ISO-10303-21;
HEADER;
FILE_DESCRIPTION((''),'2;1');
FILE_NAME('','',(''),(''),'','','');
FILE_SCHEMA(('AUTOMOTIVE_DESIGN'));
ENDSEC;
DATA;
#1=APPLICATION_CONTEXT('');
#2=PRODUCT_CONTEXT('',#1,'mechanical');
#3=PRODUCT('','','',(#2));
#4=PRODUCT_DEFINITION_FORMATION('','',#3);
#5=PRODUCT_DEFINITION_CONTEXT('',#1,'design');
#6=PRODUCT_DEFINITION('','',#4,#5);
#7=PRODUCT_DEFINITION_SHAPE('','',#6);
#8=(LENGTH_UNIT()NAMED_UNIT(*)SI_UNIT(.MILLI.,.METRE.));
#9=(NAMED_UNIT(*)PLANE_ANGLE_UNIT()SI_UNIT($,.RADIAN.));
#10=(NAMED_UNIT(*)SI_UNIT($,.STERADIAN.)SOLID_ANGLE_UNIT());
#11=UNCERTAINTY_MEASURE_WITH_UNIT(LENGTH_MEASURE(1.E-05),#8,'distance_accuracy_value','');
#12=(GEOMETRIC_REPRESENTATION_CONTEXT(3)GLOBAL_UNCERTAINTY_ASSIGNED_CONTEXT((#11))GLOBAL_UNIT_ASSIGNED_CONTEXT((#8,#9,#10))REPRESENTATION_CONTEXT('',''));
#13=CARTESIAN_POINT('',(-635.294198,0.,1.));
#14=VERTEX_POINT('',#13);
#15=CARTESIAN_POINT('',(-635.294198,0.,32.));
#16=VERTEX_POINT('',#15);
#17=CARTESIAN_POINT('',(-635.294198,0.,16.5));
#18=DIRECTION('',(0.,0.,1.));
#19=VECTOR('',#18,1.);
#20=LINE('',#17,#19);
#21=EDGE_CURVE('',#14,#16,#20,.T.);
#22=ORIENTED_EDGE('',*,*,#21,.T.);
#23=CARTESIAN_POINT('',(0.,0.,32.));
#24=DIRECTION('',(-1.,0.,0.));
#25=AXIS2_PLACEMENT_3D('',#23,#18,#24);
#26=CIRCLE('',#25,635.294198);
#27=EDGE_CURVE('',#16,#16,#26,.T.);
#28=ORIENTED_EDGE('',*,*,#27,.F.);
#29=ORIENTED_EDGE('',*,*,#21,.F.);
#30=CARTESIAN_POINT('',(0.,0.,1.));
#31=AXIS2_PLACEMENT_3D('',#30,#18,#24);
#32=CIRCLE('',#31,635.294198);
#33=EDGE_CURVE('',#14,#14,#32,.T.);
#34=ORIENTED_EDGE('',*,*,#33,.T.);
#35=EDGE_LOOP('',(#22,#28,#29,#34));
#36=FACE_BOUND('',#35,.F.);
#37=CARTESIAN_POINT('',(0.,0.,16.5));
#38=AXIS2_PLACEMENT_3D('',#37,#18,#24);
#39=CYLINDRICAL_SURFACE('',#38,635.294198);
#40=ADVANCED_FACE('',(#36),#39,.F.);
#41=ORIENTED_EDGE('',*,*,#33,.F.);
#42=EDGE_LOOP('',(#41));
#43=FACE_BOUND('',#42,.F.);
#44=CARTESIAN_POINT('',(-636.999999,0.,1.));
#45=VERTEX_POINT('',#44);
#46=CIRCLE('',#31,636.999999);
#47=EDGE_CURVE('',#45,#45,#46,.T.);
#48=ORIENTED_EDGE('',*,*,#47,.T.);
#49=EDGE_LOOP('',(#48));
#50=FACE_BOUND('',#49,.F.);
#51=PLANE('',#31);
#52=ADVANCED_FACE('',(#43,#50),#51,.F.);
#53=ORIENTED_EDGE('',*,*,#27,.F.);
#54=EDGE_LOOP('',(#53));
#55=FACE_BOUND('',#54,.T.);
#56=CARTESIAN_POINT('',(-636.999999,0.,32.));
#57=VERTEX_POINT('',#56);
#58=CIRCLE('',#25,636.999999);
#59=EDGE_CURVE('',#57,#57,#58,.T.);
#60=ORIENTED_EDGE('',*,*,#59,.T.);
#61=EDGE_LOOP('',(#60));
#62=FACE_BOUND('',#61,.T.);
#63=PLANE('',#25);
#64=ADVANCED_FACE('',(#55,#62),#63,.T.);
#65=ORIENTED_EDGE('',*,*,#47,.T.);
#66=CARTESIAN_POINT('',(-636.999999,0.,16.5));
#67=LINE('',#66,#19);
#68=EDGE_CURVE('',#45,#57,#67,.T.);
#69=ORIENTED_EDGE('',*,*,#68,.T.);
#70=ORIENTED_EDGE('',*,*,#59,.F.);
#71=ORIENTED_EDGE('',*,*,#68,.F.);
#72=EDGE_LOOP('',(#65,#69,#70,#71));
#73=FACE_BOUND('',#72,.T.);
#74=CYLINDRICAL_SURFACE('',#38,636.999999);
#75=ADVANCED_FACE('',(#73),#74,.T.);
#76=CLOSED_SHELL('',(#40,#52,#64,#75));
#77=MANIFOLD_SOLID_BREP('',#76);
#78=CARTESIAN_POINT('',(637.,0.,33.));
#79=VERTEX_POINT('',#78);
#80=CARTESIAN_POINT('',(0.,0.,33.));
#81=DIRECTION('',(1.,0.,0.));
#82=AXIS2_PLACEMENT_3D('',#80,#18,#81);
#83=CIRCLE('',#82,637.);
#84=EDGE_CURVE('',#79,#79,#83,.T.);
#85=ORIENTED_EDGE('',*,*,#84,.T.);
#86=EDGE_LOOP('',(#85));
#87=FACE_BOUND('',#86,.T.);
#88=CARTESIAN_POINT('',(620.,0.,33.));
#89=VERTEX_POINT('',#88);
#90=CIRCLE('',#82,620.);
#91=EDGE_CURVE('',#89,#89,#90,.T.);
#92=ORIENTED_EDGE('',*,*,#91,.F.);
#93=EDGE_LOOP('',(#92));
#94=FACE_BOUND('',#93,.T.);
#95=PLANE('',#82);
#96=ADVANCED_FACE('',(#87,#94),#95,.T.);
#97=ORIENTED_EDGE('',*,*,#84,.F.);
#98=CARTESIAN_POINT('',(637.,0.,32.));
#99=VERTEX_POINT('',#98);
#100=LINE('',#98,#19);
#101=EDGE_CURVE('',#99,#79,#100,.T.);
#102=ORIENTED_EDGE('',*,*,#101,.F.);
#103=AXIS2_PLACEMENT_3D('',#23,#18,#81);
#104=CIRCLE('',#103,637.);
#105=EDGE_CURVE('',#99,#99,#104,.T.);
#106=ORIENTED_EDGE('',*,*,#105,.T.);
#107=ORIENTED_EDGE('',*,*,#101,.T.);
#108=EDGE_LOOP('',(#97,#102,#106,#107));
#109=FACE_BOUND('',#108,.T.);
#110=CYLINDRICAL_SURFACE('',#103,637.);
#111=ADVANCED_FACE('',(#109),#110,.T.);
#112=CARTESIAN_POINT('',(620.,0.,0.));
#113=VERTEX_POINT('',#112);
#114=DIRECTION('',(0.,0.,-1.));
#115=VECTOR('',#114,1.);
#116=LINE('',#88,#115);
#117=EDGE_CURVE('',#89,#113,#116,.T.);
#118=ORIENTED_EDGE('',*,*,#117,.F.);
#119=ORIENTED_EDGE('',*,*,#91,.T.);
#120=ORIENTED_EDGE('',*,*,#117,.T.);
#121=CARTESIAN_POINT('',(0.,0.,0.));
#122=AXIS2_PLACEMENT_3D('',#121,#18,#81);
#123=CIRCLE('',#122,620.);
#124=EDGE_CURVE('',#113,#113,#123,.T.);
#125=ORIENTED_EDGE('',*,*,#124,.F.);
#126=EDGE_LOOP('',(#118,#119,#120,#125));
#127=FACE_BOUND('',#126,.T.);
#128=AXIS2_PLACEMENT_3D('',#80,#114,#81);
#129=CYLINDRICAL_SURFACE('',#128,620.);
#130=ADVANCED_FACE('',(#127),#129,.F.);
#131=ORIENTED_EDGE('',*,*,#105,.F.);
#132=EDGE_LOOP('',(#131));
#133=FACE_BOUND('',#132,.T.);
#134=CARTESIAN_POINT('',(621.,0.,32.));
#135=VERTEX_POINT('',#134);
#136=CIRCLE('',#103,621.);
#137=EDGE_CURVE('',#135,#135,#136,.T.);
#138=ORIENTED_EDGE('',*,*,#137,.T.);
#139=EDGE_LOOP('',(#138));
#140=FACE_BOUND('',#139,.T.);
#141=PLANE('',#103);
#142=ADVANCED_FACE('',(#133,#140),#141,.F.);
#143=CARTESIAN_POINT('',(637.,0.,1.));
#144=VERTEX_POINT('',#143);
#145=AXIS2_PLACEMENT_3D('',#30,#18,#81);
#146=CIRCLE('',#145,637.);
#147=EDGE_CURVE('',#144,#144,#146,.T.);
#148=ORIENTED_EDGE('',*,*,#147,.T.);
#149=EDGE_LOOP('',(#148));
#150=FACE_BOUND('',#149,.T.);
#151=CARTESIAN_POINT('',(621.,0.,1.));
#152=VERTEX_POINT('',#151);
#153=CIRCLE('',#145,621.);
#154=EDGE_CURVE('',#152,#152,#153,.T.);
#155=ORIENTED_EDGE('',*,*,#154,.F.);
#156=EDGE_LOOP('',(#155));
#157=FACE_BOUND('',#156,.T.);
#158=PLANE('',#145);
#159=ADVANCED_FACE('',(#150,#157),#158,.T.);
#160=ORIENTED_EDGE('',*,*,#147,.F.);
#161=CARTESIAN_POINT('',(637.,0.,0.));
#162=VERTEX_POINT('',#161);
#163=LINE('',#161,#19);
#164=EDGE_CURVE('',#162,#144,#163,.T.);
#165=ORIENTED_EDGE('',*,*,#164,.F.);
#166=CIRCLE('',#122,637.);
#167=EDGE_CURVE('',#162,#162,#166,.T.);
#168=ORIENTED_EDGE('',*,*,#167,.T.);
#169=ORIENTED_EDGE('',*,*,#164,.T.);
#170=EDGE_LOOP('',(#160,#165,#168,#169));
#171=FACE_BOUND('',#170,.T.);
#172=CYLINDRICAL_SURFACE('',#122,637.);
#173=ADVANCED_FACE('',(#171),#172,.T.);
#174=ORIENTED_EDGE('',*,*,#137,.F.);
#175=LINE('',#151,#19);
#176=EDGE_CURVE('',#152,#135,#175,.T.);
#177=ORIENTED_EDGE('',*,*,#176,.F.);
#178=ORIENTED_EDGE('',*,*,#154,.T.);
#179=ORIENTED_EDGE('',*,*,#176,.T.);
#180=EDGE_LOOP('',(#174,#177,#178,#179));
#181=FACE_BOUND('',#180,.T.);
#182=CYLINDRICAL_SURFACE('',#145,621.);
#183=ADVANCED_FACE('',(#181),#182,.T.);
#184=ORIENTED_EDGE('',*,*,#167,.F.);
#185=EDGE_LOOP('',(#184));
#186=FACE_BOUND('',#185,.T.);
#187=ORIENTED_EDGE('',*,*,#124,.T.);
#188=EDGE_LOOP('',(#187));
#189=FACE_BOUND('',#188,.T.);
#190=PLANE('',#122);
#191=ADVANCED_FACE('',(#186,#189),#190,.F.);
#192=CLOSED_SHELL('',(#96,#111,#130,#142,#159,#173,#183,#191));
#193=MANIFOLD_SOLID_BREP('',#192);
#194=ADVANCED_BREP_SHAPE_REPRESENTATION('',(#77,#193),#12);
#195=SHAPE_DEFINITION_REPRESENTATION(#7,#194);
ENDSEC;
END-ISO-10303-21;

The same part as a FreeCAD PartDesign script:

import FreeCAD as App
import Part
import Sketcher

doc = App.newDocument("Part")
body = doc.addObject("PartDesign::Body", "Body")

# Sketch on XZ plane
sketch1 = body.newObject("Sketcher::SketchObject", "Sketch")
sketch1.AttachmentSupport = (doc.getObject("XZ_Plane"), [""])
sketch1.MapMode = "FlatFace"
sketch1.addGeometry(Part.LineSegment(App.Vector(620, 33, 0), App.Vector(620, 0, 0)), False)
sketch1.addGeometry(Part.LineSegment(App.Vector(620, 0, 0), App.Vector(637, 0, 0)), False)
sketch1.addGeometry(Part.LineSegment(App.Vector(637, 0, 0), App.Vector(637, 1, 0)), False)
sketch1.addGeometry(Part.LineSegment(App.Vector(637, 1, 0), App.Vector(621, 1, 0)), False)
sketch1.addGeometry(Part.LineSegment(App.Vector(621, 1, 0), App.Vector(621, 32, 0)), False)
sketch1.addGeometry(Part.LineSegment(App.Vector(621, 32, 0), App.Vector(637, 32, 0)), False)
sketch1.addGeometry(Part.LineSegment(App.Vector(637, 32, 0), App.Vector(637, 33, 0)), False)
sketch1.addGeometry(Part.LineSegment(App.Vector(637, 33, 0), App.Vector(620, 33, 0)), False)
sketch1.addConstraint(Sketcher.Constraint("Coincident", 0, 2, 1, 1))
sketch1.addConstraint(Sketcher.Constraint("Coincident", 1, 2, 2, 1))
sketch1.addConstraint(Sketcher.Constraint("Coincident", 2, 2, 3, 1))
sketch1.addConstraint(Sketcher.Constraint("Coincident", 3, 2, 4, 1))
sketch1.addConstraint(Sketcher.Constraint("Coincident", 4, 2, 5, 1))
sketch1.addConstraint(Sketcher.Constraint("Coincident", 5, 2, 6, 1))
sketch1.addConstraint(Sketcher.Constraint("Coincident", 6, 2, 7, 1))
sketch1.addConstraint(Sketcher.Constraint("Coincident", 7, 2, 0, 1))
sketch1.addConstraint(Sketcher.Constraint("Vertical", 0))
sketch1.addConstraint(Sketcher.Constraint("Horizontal", 1))
sketch1.addConstraint(Sketcher.Constraint("Vertical", 2))
sketch1.addConstraint(Sketcher.Constraint("Horizontal", 3))
sketch1.addConstraint(Sketcher.Constraint("Vertical", 4))
sketch1.addConstraint(Sketcher.Constraint("Horizontal", 5))
sketch1.addConstraint(Sketcher.Constraint("Vertical", 6))
sketch1.addConstraint(Sketcher.Constraint("Horizontal", 7))
sketch1.addConstraint(Sketcher.Constraint("PointOnObject", 0, 2, -1))
sketch1.addConstraint(Sketcher.Constraint("Vertical", 2, 2, 5, 2))
sketch1.addConstraint(Sketcher.Constraint("Equal", 2, 6))
sketch1.addConstraint(Sketcher.Constraint("DistanceX", 1, 1, 1, 2, 17.0))
sketch1.addConstraint(Sketcher.Constraint("DistanceX", 3, 2, 3, 1, 16.0))
sketch1.addConstraint(Sketcher.Constraint("DistanceY", 0, 2, 0, 1, 33.0))
sketch1.addConstraint(Sketcher.Constraint("DistanceY", 2, 1, 2, 2, 1.0))
sketch1.addConstraint(Sketcher.Constraint("DistanceX", -1, 1, 0, 2, 620.0))
revolution = body.newObject("PartDesign::Revolution", "Revolution")
revolution.Profile = sketch1
revolution.ReferenceAxis = (sketch1, ["V_Axis"])
revolution.Angle = 360
body2 = doc.addObject("PartDesign::Body", "Body001")

# Sketch on XZ plane
sketch2 = body2.newObject("Sketcher::SketchObject", "Sketch001")
sketch2.AttachmentSupport = (doc.getObject("XZ_Plane001"), [""])
sketch2.MapMode = "FlatFace"
sketch2.addGeometry(Part.LineSegment(App.Vector(-637, 32, 0), App.Vector(-637, 1, 0)), False)
sketch2.addGeometry(Part.LineSegment(App.Vector(-637, 1, 0), App.Vector(-635.3, 1, 0)), False)
sketch2.addGeometry(Part.LineSegment(App.Vector(-635.3, 1, 0), App.Vector(-635.3, 32, 0)), False)
sketch2.addGeometry(Part.LineSegment(App.Vector(-635.3, 32, 0), App.Vector(-637, 32, 0)), False)
sketch2.addConstraint(Sketcher.Constraint("Coincident", 0, 2, 1, 1))
sketch2.addConstraint(Sketcher.Constraint("Coincident", 1, 2, 2, 1))
sketch2.addConstraint(Sketcher.Constraint("Coincident", 2, 2, 3, 1))
sketch2.addConstraint(Sketcher.Constraint("Coincident", 3, 2, 0, 1))
sketch2.addConstraint(Sketcher.Constraint("Vertical", 0))
sketch2.addConstraint(Sketcher.Constraint("Horizontal", 1))
sketch2.addConstraint(Sketcher.Constraint("Vertical", 2))
sketch2.addConstraint(Sketcher.Constraint("Horizontal", 3))
sketch2.addConstraint(Sketcher.Constraint("DistanceY", 0, 2, 0, 1, 31.0))
sketch2.addConstraint(Sketcher.Constraint("DistanceX", 0, 2, -1, 1, 636.999999))
sketch2.addConstraint(Sketcher.Constraint("DistanceY", -1, 1, 0, 2, 1.0))
sketch2.addConstraint(Sketcher.Constraint("DistanceX", 1, 1, 1, 2, 1.705801))
revolution2 = body2.newObject("PartDesign::Revolution", "Revolution001")
revolution2.Profile = sketch2
revolution2.ReferenceAxis = (sketch2, ["V_Axis"])
revolution2.Angle = 360

doc.recompute()
